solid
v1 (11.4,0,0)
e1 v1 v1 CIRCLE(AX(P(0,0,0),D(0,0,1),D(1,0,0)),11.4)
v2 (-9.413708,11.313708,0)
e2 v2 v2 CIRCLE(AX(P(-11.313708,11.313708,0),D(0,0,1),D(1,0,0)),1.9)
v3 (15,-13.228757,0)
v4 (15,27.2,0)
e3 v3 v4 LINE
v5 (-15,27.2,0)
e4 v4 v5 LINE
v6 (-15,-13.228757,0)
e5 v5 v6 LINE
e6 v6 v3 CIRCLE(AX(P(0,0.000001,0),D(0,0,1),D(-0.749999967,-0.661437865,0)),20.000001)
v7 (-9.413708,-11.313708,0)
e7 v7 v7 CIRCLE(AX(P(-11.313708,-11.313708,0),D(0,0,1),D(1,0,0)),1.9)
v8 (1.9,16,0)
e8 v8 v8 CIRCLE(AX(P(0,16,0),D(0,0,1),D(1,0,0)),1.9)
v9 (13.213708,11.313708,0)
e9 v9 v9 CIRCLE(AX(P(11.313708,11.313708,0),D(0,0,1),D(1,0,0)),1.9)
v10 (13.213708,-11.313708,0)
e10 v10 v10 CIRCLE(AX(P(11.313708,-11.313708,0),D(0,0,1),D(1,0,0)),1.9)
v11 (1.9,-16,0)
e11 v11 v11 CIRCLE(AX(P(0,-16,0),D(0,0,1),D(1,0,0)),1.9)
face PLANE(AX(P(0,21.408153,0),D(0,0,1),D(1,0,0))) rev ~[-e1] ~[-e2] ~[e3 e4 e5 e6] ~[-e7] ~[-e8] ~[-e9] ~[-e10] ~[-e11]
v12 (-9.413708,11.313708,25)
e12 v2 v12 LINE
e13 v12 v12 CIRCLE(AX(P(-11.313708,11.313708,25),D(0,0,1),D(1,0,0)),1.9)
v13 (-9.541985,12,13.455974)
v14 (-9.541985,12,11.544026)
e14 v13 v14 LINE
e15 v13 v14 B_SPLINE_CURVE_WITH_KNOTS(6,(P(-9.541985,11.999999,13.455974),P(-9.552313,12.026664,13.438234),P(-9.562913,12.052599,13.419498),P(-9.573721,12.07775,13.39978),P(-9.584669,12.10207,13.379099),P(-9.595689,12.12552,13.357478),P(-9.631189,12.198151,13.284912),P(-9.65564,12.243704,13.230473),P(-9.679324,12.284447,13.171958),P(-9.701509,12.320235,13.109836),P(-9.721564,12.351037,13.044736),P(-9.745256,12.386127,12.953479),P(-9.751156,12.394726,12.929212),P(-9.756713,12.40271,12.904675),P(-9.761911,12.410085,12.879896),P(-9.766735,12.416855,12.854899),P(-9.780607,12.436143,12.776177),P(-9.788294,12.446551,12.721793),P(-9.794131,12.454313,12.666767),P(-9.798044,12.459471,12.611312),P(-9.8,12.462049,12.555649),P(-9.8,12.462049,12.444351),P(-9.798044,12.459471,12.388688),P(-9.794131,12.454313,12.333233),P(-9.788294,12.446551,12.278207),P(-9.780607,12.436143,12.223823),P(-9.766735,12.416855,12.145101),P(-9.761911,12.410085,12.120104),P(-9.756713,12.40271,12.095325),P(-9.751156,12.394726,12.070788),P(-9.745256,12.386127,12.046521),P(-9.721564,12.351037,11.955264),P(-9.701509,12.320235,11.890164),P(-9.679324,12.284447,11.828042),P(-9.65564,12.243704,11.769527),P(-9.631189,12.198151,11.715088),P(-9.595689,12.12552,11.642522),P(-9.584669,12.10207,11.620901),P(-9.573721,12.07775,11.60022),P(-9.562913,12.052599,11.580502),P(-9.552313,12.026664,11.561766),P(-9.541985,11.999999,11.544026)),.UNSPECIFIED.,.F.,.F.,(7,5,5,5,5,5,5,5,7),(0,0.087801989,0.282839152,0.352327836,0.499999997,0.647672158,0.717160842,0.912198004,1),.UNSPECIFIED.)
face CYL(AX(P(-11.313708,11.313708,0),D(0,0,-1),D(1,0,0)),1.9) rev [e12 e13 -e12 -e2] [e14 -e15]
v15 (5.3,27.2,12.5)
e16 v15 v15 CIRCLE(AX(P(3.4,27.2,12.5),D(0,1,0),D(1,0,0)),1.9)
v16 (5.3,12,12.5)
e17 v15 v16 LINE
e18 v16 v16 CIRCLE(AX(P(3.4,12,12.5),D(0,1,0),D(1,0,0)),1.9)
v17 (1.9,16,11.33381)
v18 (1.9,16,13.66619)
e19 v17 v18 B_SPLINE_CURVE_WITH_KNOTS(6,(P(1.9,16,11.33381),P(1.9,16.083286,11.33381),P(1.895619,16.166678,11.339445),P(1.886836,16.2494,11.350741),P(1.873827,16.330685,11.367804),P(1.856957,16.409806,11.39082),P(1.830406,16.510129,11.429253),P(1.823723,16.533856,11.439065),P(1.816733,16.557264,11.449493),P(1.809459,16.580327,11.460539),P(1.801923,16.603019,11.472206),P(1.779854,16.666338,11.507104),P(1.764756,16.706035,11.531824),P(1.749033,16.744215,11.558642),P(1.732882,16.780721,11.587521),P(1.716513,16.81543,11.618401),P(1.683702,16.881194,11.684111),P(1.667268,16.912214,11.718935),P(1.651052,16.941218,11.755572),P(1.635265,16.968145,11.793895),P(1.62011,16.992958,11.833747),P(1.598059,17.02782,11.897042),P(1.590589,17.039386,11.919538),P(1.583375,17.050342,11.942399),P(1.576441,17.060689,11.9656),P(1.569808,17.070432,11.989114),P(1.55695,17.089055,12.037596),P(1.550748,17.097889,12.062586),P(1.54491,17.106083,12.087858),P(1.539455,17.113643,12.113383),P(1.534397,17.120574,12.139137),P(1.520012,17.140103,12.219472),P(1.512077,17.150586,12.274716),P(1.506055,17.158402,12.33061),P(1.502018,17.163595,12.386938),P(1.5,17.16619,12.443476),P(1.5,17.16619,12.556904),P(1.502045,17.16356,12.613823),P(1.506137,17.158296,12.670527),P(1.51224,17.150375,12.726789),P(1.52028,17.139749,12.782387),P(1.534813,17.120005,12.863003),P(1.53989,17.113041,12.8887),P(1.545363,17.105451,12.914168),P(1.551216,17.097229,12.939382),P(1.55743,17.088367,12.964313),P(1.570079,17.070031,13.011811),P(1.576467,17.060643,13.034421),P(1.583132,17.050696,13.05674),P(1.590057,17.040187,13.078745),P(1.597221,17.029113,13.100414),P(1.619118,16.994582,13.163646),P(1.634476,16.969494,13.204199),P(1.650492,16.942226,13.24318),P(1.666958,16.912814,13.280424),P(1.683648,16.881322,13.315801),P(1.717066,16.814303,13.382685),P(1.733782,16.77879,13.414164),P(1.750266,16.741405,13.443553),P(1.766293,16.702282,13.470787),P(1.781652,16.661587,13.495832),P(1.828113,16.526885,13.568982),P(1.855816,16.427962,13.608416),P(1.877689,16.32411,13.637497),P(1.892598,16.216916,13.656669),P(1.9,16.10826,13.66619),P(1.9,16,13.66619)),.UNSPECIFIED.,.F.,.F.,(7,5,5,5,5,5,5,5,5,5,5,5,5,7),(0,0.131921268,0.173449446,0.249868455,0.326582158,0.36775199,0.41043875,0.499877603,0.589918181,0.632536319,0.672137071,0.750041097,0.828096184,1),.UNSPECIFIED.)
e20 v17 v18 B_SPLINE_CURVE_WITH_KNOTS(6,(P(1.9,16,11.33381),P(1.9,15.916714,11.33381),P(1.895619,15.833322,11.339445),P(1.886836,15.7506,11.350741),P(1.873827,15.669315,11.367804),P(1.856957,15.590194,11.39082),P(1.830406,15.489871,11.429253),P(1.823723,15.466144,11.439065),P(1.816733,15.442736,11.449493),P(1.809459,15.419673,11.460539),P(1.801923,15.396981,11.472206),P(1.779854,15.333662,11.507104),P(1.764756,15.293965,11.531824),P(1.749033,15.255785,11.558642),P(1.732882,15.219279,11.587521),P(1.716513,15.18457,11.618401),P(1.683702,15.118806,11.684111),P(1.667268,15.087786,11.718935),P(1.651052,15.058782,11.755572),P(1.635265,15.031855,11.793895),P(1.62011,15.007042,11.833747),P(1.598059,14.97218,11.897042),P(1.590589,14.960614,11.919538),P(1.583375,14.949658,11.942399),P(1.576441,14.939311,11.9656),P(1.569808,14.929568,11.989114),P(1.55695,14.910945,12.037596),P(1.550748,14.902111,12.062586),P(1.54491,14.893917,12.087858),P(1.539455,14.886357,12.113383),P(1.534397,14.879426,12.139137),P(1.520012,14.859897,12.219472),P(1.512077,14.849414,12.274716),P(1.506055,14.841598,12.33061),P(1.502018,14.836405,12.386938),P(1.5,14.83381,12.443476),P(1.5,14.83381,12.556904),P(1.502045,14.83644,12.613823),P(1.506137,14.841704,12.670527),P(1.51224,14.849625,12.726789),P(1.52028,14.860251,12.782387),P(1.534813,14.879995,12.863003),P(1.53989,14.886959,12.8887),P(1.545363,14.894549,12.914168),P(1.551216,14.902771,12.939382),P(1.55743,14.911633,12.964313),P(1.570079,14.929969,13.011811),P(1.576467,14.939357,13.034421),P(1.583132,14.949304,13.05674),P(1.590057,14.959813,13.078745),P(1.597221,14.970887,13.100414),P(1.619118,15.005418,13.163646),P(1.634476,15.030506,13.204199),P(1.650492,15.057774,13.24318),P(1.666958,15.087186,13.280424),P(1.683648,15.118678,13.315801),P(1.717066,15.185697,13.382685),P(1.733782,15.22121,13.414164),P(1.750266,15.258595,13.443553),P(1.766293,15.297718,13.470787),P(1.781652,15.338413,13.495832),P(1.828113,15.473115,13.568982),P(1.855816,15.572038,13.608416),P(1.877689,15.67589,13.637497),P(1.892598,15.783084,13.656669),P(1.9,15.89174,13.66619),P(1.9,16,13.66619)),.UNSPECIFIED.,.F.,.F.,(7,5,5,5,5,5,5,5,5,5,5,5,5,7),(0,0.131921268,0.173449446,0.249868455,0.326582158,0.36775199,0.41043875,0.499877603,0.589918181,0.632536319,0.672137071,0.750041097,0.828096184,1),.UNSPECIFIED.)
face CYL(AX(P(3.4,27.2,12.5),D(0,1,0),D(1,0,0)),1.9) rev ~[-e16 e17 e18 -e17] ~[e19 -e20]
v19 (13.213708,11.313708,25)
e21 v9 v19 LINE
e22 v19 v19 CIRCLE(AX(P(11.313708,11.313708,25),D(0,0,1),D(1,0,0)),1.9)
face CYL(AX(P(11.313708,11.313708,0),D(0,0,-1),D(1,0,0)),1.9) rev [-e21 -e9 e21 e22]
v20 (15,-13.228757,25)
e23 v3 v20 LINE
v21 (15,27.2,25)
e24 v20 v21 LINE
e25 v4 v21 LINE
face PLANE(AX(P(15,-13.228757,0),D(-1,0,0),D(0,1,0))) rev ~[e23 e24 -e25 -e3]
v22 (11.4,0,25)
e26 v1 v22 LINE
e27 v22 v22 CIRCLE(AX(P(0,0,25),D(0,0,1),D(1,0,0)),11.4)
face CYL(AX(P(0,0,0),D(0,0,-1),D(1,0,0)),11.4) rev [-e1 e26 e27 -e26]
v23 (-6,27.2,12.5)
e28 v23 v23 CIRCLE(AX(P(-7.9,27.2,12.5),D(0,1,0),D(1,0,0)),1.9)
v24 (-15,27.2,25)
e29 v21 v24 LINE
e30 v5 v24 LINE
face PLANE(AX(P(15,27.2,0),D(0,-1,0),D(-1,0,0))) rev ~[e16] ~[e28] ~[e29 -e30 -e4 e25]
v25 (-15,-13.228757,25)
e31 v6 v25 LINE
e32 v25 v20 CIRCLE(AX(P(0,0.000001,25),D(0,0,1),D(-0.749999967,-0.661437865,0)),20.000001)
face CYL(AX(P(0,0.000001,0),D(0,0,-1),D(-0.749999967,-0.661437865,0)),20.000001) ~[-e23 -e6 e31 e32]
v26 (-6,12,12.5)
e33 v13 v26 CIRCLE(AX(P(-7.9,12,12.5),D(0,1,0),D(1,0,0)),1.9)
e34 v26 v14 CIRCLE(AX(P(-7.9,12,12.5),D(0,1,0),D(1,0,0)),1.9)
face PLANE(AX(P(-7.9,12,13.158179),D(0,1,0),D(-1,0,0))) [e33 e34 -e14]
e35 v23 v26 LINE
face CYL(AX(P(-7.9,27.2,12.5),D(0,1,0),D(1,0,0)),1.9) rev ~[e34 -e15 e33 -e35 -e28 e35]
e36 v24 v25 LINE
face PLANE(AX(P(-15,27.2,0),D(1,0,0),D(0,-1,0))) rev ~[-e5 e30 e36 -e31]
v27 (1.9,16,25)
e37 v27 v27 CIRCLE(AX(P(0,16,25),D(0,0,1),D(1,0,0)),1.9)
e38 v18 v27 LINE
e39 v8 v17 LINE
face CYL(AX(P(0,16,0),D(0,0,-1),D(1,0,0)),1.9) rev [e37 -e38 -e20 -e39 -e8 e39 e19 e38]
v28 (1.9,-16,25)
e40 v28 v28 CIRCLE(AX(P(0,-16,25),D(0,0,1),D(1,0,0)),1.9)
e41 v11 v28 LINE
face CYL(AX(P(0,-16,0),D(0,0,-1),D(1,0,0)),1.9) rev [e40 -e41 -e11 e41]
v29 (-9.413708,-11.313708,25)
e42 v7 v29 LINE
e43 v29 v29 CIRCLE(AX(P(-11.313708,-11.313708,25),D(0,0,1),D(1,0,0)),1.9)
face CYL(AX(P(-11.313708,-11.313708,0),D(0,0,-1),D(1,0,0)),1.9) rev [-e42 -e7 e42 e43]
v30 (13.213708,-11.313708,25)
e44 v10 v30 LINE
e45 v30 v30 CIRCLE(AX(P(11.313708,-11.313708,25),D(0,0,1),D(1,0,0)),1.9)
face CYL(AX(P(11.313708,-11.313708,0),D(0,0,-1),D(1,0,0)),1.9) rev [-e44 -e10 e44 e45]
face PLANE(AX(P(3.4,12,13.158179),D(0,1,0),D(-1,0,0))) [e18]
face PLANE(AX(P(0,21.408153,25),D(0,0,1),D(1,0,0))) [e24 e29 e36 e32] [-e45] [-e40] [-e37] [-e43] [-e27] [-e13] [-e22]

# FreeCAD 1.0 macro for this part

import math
import FreeCAD as App
import Part
import Sketcher

doc = App.newDocument("Part")
body = doc.addObject("PartDesign::Body", "Body")

# Sketch on XY plane
sketch1 = body.newObject("Sketcher::SketchObject", "Sketch")
sketch1.AttachmentSupport = (doc.getObject("XY_Plane"), [""])
sketch1.MapMode = "FlatFace"
sketch1.addGeometry([
    Part.LineSegment(App.Vector(15, 27.2, 0), App.Vector(-15, 27.2, 0)),  # 0
    Part.LineSegment(App.Vector(-15, 27.2, 0), App.Vector(-15, -13.2, 0)),  # 1
    Part.ArcOfCircle(Part.Circle(App.Vector(0, 0, 0), App.Vector(0, 0, 1), 20), math.radians(-139), math.radians(-41)),  # 2
    Part.LineSegment(App.Vector(15, -13.2, 0), App.Vector(15, 27.2, 0)),  # 3
    Part.Circle(App.Vector(11.3, 11.3, 0), App.Vector(0, 0, 1), 1.9),  # 4
    Part.Circle(App.Vector(-11.3, -11.3, 0), App.Vector(0, 0, 1), 1.9),  # 5
    Part.Circle(App.Vector(0, -16, 0), App.Vector(0, 0, 1), 1.9),  # 6
    Part.Circle(App.Vector(11.3, -11.3, 0), App.Vector(0, 0, 1), 1.9),  # 7
    Part.Circle(App.Vector(0, 0, 0), App.Vector(0, 0, 1), 11.4),  # 8
    Part.Circle(App.Vector(-11.3, 11.3, 0), App.Vector(0, 0, 1), 1.9),  # 9
    Part.Circle(App.Vector(0, 16, 0), App.Vector(0, 0, 1), 1.9),  # 10
], False)
sketch1.addConstraint([
    Sketcher.Constraint("Coincident", 0, 2, 1, 1),
    Sketcher.Constraint("Coincident", 1, 2, 2, 1),
    Sketcher.Constraint("Coincident", 2, 2, 3, 1),
    Sketcher.Constraint("Coincident", 3, 2, 0, 1),
    Sketcher.Constraint("Horizontal", 0),
    Sketcher.Constraint("Vertical", 1),
    Sketcher.Constraint("Vertical", 3),
    Sketcher.Constraint("Coincident", 2, 3, -1, 1),
    Sketcher.Constraint("Coincident", 8, 3, -1, 1),
    Sketcher.Constraint("Equal", 4, 5),
    Sketcher.Constraint("Equal", 5, 6),
    Sketcher.Constraint("Equal", 6, 7),
    Sketcher.Constraint("Equal", 7, 9),
    Sketcher.Constraint("Equal", 9, 10),
    Sketcher.Constraint("Symmetric", 4, 3, 5, 3, -1, 1),
    Sketcher.Constraint("Symmetric", 7, 3, 9, 3, -1, 1),
    Sketcher.Constraint("Symmetric", 6, 3, 10, 3, -1, 1),
    Sketcher.Constraint("Symmetric", 5, 3, 7, 3, -2),
    Sketcher.Constraint("PointOnObject", 6, 3, -2),
    Sketcher.Constraint("Horizontal", 1, 2, 2, 2),
    Sketcher.Constraint("Radius", 2, 20.000001),
    Sketcher.Constraint("Diameter", 4, 3.8),
    Sketcher.Constraint("Diameter", 8, 22.8),
    Sketcher.Constraint("DistanceX", 0, 2, 0, 1, 30.0),
    Sketcher.Constraint("DistanceY", 6, 3, -1, 1, 16.0),
    Sketcher.Constraint("DistanceY", -1, 1, 0, 2, 27.2),
    Sketcher.Constraint("DistanceY", 5, 3, 2, 3, 11.313709),
    Sketcher.Constraint("DistanceX", 0, 2, 9, 3, 3.686292),
])
pad1 = body.newObject("PartDesign::Pad", "Pad")
pad1.Profile = sketch1
pad1.Length = 25

# Sketch on XZ plane
sketch2 = body.newObject("Sketcher::SketchObject", "Sketch001")
sketch2.AttachmentSupport = (doc.getObject("XZ_Plane"), [""])
sketch2.MapMode = "FlatFace"
sketch2.AttachmentOffset = App.Placement(App.Vector(0, 0, -27.2), App.Rotation())
sketch2.addGeometry([
    Part.Circle(App.Vector(3.4, 12.5, 0), App.Vector(0, 0, 1), 1.9),
    Part.Circle(App.Vector(-7.9, 12.5, 0), App.Vector(0, 0, 1), 1.9),
], False)
sketch2.addConstraint([
    Sketcher.Constraint("Equal", 0, 1),
    Sketcher.Constraint("Horizontal", 0, 3, 1, 3),
    Sketcher.Constraint("Diameter", 0, 3.8),
    Sketcher.Constraint("DistanceX", -1, 1, 0, 3, 3.4),
    Sketcher.Constraint("DistanceY", -1, 1, 0, 3, 12.5),
    Sketcher.Constraint("DistanceX", 1, 3, -1, 1, 7.9),
])
pocket1 = body.newObject("PartDesign::Pocket", "Pocket")
pocket1.Profile = sketch2
pocket1.Length = 15.2
pocket1.Reversed = True

doc.recompute()
